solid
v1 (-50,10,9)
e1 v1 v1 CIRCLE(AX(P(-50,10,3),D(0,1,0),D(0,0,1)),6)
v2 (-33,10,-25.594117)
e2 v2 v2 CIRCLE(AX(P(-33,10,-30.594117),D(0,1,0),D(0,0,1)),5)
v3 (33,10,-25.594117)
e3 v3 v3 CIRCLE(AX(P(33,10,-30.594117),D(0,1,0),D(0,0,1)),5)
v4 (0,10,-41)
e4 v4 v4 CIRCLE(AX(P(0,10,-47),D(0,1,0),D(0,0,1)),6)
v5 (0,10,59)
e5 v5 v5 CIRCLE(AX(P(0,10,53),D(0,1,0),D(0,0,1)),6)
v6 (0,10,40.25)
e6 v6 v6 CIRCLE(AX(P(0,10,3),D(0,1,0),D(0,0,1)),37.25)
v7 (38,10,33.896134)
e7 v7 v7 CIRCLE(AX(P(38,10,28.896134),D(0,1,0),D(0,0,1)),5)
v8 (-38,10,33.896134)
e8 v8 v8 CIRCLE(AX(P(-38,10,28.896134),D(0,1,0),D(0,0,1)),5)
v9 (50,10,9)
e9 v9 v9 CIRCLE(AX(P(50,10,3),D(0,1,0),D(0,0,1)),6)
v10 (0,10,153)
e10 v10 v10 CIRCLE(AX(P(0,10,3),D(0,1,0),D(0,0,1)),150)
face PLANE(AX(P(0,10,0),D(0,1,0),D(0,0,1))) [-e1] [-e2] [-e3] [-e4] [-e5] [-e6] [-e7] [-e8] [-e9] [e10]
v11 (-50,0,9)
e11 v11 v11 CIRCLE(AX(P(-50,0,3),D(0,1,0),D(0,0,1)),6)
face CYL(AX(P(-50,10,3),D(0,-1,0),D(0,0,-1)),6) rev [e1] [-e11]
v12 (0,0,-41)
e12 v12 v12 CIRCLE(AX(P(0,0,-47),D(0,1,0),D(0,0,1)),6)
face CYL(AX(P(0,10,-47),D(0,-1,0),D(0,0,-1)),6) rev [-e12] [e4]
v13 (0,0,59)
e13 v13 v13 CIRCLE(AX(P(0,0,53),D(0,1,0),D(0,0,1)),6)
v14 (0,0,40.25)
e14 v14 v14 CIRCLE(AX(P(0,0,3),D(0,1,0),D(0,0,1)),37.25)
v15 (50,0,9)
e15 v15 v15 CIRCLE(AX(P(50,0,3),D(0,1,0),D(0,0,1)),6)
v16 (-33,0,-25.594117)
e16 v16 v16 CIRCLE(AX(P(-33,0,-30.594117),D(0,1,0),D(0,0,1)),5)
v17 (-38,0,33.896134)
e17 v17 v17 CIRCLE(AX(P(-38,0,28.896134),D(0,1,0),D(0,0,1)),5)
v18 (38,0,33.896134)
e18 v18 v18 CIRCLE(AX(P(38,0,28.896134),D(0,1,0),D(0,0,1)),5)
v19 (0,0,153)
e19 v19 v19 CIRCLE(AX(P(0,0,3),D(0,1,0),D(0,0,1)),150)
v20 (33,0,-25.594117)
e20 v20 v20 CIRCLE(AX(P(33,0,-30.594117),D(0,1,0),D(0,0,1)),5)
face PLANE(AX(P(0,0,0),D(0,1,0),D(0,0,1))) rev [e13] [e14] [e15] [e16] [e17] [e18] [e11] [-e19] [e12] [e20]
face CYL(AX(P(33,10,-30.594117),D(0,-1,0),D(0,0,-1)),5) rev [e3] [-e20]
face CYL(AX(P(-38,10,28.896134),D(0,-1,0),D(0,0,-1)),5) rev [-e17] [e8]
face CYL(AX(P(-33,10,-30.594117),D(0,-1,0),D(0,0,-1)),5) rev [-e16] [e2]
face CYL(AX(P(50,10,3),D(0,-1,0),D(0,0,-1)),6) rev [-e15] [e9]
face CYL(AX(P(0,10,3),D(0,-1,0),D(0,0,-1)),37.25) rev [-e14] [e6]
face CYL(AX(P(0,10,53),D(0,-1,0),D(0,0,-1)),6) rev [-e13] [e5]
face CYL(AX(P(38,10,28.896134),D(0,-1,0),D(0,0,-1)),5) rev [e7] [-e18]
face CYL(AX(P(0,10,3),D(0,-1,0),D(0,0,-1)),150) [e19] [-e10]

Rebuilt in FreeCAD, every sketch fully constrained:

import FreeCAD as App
import Part
import Sketcher

V = App.Vector
Q = App.Units.Quantity

doc = App.newDocument("Part")
params = doc.addObject("Spreadsheet::Sheet", "Params")
for row, (alias, value) in enumerate([
    ("sketch1_diameter", "300 mm"),
    ("sketch1_diameter2", "10 mm"),
    ("sketch1_diameter3", "12 mm"),
    ("sketch1_diameter4", "74.5 mm"),
    ("pad1_length", "10 mm"),
], start=1):
    params.set(f"A{row}", alias)
    params.set(f"B{row}", "=" + value)
    params.setAlias(f"B{row}", alias)

body = doc.addObject("PartDesign::Body", "Body")

# Sketch on XZ plane
sketch1 = doc.addObject("Sketcher::SketchObject", "Sketch")
body.addObject(sketch1)
sketch1.AttachmentSupport = (doc.XZ_Plane, [""])
sketch1.MapMode = "FlatFace"
sketch1.addGeometry([
    Part.Circle(V(0, 3, 0), V(0, 0, 1), 150),  # 0
    Part.Circle(V(-33, -30.594117, 0), V(0, 0, 1), 5),  # 1
    Part.Circle(V(0, -47, 0), V(0, 0, 1), 6),  # 2
    Part.Circle(V(-50, 3, 0), V(0, 0, 1), 6),  # 3
    Part.Circle(V(-38, 28.896134, 0), V(0, 0, 1), 5),  # 4
    Part.Circle(V(33, -30.594117, 0), V(0, 0, 1), 5),  # 5
    Part.Circle(V(50, 3, 0), V(0, 0, 1), 6),  # 6
    Part.Circle(V(0, 3, 0), V(0, 0, 1), 37.25),  # 7
    Part.Circle(V(0, 53, 0), V(0, 0, 1), 6),  # 8
    Part.Circle(V(38, 28.896134, 0), V(0, 0, 1), 5),  # 9
], False)
sketch1.addConstraint([
    Sketcher.Constraint("Coincident", 7, 3, 0, 3),
    Sketcher.Constraint("Equal", 2, 3),
    Sketcher.Constraint("Equal", 1, 4),
    Sketcher.Constraint("Equal", 4, 5),
    Sketcher.Constraint("Equal", 3, 6),
    Sketcher.Constraint("Equal", 6, 8),
    Sketcher.Constraint("Equal", 5, 9),
    Sketcher.Constraint("Symmetric", 1, 3, 5, 3, -2),
    Sketcher.Constraint("Symmetric", 3, 3, 6, 3, -2),
    Sketcher.Constraint("Symmetric", 4, 3, 9, 3, -2),
    Sketcher.Constraint("PointOnObject", 0, 3, -2),
    Sketcher.Constraint("PointOnObject", 2, 3, -2),
    Sketcher.Constraint("PointOnObject", 8, 3, -2),
    Sketcher.Constraint("Horizontal", 0, 3, 3, 3),
    Sketcher.Constraint("Diameter", 0, Q("300 mm")),
    Sketcher.Constraint("Diameter", 1, Q("10 mm")),
    Sketcher.Constraint("Diameter", 2, Q("12 mm")),
    Sketcher.Constraint("Diameter", 7, Q("74.5 mm")),
    Sketcher.Constraint("DistanceY", -1, 1, 0, 3, Q("3 mm")),
    Sketcher.Constraint("DistanceX", 1, 3, -1, 1, Q("33 mm")),
    Sketcher.Constraint("DistanceY", 2, 3, -1, 1, Q("47 mm")),
    Sketcher.Constraint("DistanceX", 3, 3, -1, 1, Q("50 mm")),
    Sketcher.Constraint("DistanceX", 4, 3, -1, 1, Q("38 mm")),
    Sketcher.Constraint("DistanceY", -1, 1, 8, 3, Q("53 mm")),
    Sketcher.Constraint("DistanceY", 1, 3, 4, 3, Q("59.490251 mm")),
    Sketcher.Constraint("DistanceY", 1, 3, -1, 1, Q("30.594117 mm")),
])
sketch1.setExpression("Constraints[14]", "Params.sketch1_diameter")
sketch1.setExpression("Constraints[15]", "Params.sketch1_diameter2")
sketch1.setExpression("Constraints[16]", "Params.sketch1_diameter3")
sketch1.setExpression("Constraints[17]", "Params.sketch1_diameter4")
pad1 = doc.addObject("PartDesign::Pad", "Pad")
body.addObject(pad1)
pad1.Profile = sketch1
pad1.setExpression("Length", "Params.pad1_length")
pad1.Reversed = True

doc.recompute()
